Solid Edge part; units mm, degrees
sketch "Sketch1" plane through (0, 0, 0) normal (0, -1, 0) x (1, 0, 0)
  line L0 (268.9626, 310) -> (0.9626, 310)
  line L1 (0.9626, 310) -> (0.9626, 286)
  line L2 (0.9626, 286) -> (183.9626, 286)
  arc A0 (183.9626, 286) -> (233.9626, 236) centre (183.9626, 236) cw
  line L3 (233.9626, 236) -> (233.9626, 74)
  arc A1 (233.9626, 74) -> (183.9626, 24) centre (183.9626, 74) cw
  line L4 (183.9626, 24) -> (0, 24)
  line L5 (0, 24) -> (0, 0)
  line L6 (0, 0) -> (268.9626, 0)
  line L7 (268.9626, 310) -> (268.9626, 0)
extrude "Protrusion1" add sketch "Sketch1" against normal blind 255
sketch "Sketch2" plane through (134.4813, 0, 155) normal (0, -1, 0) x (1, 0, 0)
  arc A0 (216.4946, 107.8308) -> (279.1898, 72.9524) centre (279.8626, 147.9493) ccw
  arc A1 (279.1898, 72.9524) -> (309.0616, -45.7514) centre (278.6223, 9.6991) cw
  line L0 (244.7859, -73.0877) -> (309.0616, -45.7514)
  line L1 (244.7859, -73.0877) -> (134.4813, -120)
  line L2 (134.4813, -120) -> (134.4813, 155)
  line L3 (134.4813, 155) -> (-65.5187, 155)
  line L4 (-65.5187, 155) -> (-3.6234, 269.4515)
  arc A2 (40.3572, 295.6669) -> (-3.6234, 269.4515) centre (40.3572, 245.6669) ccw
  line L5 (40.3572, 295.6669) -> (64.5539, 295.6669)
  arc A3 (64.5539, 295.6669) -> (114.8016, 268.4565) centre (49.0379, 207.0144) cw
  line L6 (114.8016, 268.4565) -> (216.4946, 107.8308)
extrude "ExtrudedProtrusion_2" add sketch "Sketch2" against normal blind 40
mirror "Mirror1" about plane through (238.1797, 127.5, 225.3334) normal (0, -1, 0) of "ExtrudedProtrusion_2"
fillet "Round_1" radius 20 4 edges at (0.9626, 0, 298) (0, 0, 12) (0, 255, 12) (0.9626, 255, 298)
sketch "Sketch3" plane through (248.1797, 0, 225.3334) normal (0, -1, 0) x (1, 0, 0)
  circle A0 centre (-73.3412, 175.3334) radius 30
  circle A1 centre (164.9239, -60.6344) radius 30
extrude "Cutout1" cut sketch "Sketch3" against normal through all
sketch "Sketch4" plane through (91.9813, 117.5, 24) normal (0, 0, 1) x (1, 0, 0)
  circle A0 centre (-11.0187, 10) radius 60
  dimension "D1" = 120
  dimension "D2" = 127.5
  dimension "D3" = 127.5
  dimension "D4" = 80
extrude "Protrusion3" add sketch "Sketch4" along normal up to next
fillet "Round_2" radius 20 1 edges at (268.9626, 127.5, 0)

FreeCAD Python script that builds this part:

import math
import FreeCAD as App
import Part
import Sketcher

V = App.Vector
Q = App.Units.Quantity


def edges_at(feature, points):
    """Names of the edges that pass closest to the given points."""
    edges = feature.Shape.Edges
    near = lambda p: min(range(len(edges)), key=lambda i: edges[i].distToShape(Part.Vertex(*p))[0])
    return sorted({f"Edge{near(p) + 1}" for p in points})

doc = App.newDocument("Part")
body = doc.addObject("PartDesign::Body", "Body")

# Sketch on XZ plane
sketch1 = doc.addObject("Sketcher::SketchObject", "Sketch")
body.addObject(sketch1)
sketch1.AttachmentSupport = (doc.XZ_Plane, [""])
sketch1.MapMode = "FlatFace"
sketch1.addGeometry([
    Part.LineSegment(V(269, 0, 0), V(269, 310, 0)),  # 0
    Part.LineSegment(V(269, 310, 0), V(1, 310, 0)),  # 1
    Part.LineSegment(V(1, 310, 0), V(1, 286, 0)),  # 2
    Part.LineSegment(V(1, 286, 0), V(184, 286, 0)),  # 3
    Part.ArcOfCircle(Part.Circle(V(184, 236, 0), V(0, 0, 1), 50), math.radians(0), math.radians(90)),  # 4
    Part.LineSegment(V(234, 236, 0), V(234, 74, 0)),  # 5
    Part.ArcOfCircle(Part.Circle(V(184, 74, 0), V(0, 0, 1), 50), math.radians(-90), math.radians(0)),  # 6
    Part.LineSegment(V(184, 24, 0), V(0, 24, 0)),  # 7
    Part.LineSegment(V(0, 24, 0), V(0, 0, 0)),  # 8
    Part.LineSegment(V(0, 0, 0), V(269, 0, 0)),  # 9
], False)
sketch1.addConstraint([
    Sketcher.Constraint("Coincident", 0, 2, 1, 1),
    Sketcher.Constraint("Coincident", 1, 2, 2, 1),
    Sketcher.Constraint("Coincident", 2, 2, 3, 1),
    Sketcher.Constraint("Tangent", 3, 2, 4, 2),
    Sketcher.Constraint("Tangent", 4, 1, 5, 1),
    Sketcher.Constraint("Tangent", 5, 2, 6, 2),
    Sketcher.Constraint("Tangent", 6, 1, 7, 1),
    Sketcher.Constraint("Coincident", 7, 2, 8, 1),
    Sketcher.Constraint("Coincident", 8, 2, 9, 1),
    Sketcher.Constraint("Coincident", 9, 2, 0, 1),
    Sketcher.Constraint("Vertical", 0),
    Sketcher.Constraint("Horizontal", 1),
    Sketcher.Constraint("Vertical", 2),
    Sketcher.Constraint("Horizontal", 3),
    Sketcher.Constraint("Vertical", 5),
    Sketcher.Constraint("Horizontal", 7),
    Sketcher.Constraint("Vertical", 8),
    Sketcher.Constraint("Horizontal", 9),
    Sketcher.Constraint("Coincident", 8, 2, -1, 1),
    Sketcher.Constraint("Equal", 4, 6),
    Sketcher.Constraint("Equal", 2, 8),
    Sketcher.Constraint("Radius", 4, 50.0),
    Sketcher.Constraint("DistanceX", 1, 2, 1, 1, 268.0),
    Sketcher.Constraint("DistanceX", 3, 1, 3, 2, 183.0),
    Sketcher.Constraint("DistanceY", 0, 1, 0, 2, 310.0),
    Sketcher.Constraint("DistanceY", 2, 2, 2, 1, 24.0),
    Sketcher.Constraint("DistanceX", 7, 2, 7, 1, 183.9626),
])
pad1 = doc.addObject("PartDesign::Pad", "Pad")
body.addObject(pad1)
pad1.Profile = sketch1
pad1.Length = 255
pad1.Reversed = True

# Sketch on XZ plane
sketch2 = doc.addObject("Sketcher::SketchObject", "Sketch001")
body.addObject(sketch2)
sketch2.AttachmentSupport = (doc.XZ_Plane, [""])
sketch2.MapMode = "FlatFace"
sketch2.addGeometry([
    Part.ArcOfCircle(Part.Circle(V(414, 303, 0), V(0, 0, 1), 75), math.radians(-148), math.radians(-91)),  # 0
    Part.LineSegment(V(351, 263, 0), V(249, 423, 0)),  # 1
    Part.ArcOfCircle(Part.Circle(V(184, 362, 0), V(0, 0, 1), 90), math.radians(43), math.radians(80)),  # 2
    Part.LineSegment(V(199, 451, 0), V(175, 451, 0)),  # 3
    Part.ArcOfCircle(Part.Circle(V(175, 401, 0), V(0, 0, 1), 50), math.radians(90), math.radians(152)),  # 4
    Part.LineSegment(V(131, 424, 0), V(69, 310, 0)),  # 5
    Part.LineSegment(V(69, 310, 0), V(269, 310, 0)),  # 6
    Part.LineSegment(V(269, 310, 0), V(269, 35, 0)),  # 7
    Part.LineSegment(V(269, 35, 0), V(379, 82, 0)),  # 8
    Part.LineSegment(V(379, 82, 0), V(444, 109, 0)),  # 9
    Part.ArcOfCircle(Part.Circle(V(413, 165, 0), V(0, 0, 1), 63), math.radians(-61), math.radians(89)),  # 10
], False)
sketch2.addConstraint([
    Sketcher.Constraint("Tangent", 0, 1, 1, 1),
    Sketcher.Constraint("Coincident", 1, 2, 2, 1),
    Sketcher.Constraint("Coincident", 2, 2, 3, 1),
    Sketcher.Constraint("Tangent", 3, 2, 4, 1),
    Sketcher.Constraint("Tangent", 4, 2, 5, 1),
    Sketcher.Constraint("Coincident", 5, 2, 6, 1),
    Sketcher.Constraint("Coincident", 6, 2, 7, 1),
    Sketcher.Constraint("Coincident", 7, 2, 8, 1),
    Sketcher.Constraint("Coincident", 8, 2, 9, 1),
    Sketcher.Constraint("Coincident", 9, 2, 10, 1),
    Sketcher.Constraint("Tangent", 10, 2, 0, 2),
    Sketcher.Constraint("Horizontal", 3),
    Sketcher.Constraint("Horizontal", 6),
    Sketcher.Constraint("Vertical", 7),
    Sketcher.Constraint("Parallel", 8, 9),
    Sketcher.Constraint("Radius", 0, 75.0),
    Sketcher.Constraint("Radius", 2, 90.0),
    Sketcher.Constraint("Radius", 4, 50.0),
    Sketcher.Constraint("DistanceX", 6, 1, 6, 2, 200.0),
    Sketcher.Constraint("DistanceY", 7, 2, 7, 1, 275.0),
    Sketcher.Constraint("DistanceY", -1, 1, 5, 2, 310.0),
    Sketcher.Constraint("Angle", 8, Q("23.04 deg")),
    Sketcher.Constraint("Radius", 10, 63.2558),
    Sketcher.Constraint("DistanceY", 8, 2, 10, 2, 146.04),
    Sketcher.Constraint("Distance", 5, 130.116),
    Sketcher.Constraint("Distance", 8, 119.866),
    Sketcher.Constraint("DistanceX", 3, 2, 3, 1, 24.1967),
    Sketcher.Constraint("DistanceX", -1, 1, 0, 3, 414.344),
    Sketcher.Constraint("DistanceY", -1, 1, 4, 3, 400.667),
    Sketcher.Constraint("DistanceX", -1, 1, 0, 1, 350.976),
    Sketcher.Constraint("DistanceX", -1, 1, 1, 2, 249.283),
    Sketcher.Constraint("DistanceX", -1, 1, 4, 2, 130.858),
    Sketcher.Constraint("DistanceX", -1, 1, 9, 2, 443.543),
])
pad2 = doc.addObject("PartDesign::Pad", "Pad001")
body.addObject(pad2)
pad2.Profile = sketch2
pad2.Length = 40
pad2.Reversed = True
doc.recompute()

datumplane = doc.addObject("PartDesign::Plane", "DatumPlane")
body.addObject(datumplane)
datumplane.AttachmentSupport = (doc.XZ_Plane, [""])
datumplane.MapMode = "FlatFace"
datumplane.AttachmentOffset = App.Placement(V(0, 0, -127.5), App.Rotation())
mirrored = doc.addObject("PartDesign::Mirrored", "Mirrored")
body.addObject(mirrored)
mirrored.Originals = [pad2]
mirrored.MirrorPlane = (datumplane, [""])
body.Tip = mirrored
doc.recompute()

fillet = doc.addObject("PartDesign::Fillet", "Fillet")
body.addObject(fillet)
fillet.Base = (mirrored, edges_at(mirrored, [
    (0.963, 0, 298),
    (0, 0, 12),
    (0, 255, 12),
    (0.963, 255, 298),
]))
fillet.Radius = 20

# Sketch on XZ plane
sketch3 = doc.addObject("Sketcher::SketchObject", "Sketch002")
body.addObject(sketch3)
sketch3.AttachmentSupport = (doc.XZ_Plane, [""])
sketch3.MapMode = "FlatFace"
sketch3.addGeometry([
    Part.Circle(V(175, 401, 0), V(0, 0, 1), 30),
    Part.Circle(V(413, 165, 0), V(0, 0, 1), 30),
], False)
sketch3.addConstraint([
    Sketcher.Constraint("Equal", 0, 1),
    Sketcher.Constraint("Diameter", 0, 60.0),
    Sketcher.Constraint("DistanceY", -1, 1, 1, 3, 164.699),
    Sketcher.Constraint("DistanceX", 0, 3, 1, 3, 238.265),
    Sketcher.Constraint("DistanceX", -1, 1, 0, 3, 174.8385),
    Sketcher.Constraint("DistanceY", -1, 1, 0, 3, 400.6668),
])
pocket1 = doc.addObject("PartDesign::Pocket", "Pocket")
body.addObject(pocket1)
pocket1.Profile = sketch3
pocket1.Type = "ThroughAll"

# Sketch on XY plane
sketch4 = doc.addObject("Sketcher::SketchObject", "Sketch003")
body.addObject(sketch4)
sketch4.AttachmentSupport = (doc.XY_Plane, [""])
sketch4.MapMode = "FlatFace"
sketch4.AttachmentOffset = App.Placement(V(0, 0, 24), App.Rotation())
sketch4.addGeometry(Part.Circle(V(81, 128, 0), V(0, 0, 1), 60), False)
sketch4.addConstraint([
    Sketcher.Constraint("Diameter", 0, 120.0),
    Sketcher.Constraint("DistanceY", -1, 1, 0, 3, 127.5),
    Sketcher.Constraint("DistanceX", -1, 1, 0, 3, 80.9626),
])
pad3 = doc.addObject("PartDesign::Pad", "Pad002")
body.addObject(pad3)
pad3.Profile = sketch4
pad3.Type = "UpToFirst"
doc.recompute()

fillet2 = doc.addObject("PartDesign::Fillet", "Fillet001")
body.addObject(fillet2)
fillet2.Base = (pad3, edges_at(pad3, [(268.963, 127.5, 0)]))
fillet2.Radius = 20

doc.recompute()
